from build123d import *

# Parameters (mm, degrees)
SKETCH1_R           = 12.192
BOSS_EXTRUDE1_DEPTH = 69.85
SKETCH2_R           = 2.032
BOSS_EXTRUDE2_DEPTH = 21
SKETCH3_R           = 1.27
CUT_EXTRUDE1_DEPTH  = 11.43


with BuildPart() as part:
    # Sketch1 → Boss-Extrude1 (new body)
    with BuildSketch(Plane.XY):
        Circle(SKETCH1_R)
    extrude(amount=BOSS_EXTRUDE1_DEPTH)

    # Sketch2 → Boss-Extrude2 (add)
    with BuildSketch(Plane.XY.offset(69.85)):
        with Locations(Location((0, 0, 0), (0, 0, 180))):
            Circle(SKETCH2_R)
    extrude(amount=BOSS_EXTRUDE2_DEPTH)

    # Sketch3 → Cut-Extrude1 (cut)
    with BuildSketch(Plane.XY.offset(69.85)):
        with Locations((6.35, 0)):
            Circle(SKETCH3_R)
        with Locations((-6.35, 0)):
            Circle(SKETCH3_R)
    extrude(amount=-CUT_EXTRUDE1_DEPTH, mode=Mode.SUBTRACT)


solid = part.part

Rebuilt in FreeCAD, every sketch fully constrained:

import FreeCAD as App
import Part
import Sketcher

V = App.Vector
Q = App.Units.Quantity

doc = App.newDocument("Part")
body = doc.addObject("PartDesign::Body", "Body")

# Sketch on XY plane
sketch1 = body.newObject("Sketcher::SketchObject", "Sketch")
sketch1.AttachmentSupport = (doc.getObject("XY_Plane"), [""])
sketch1.MapMode = "FlatFace"
sketch1.addGeometry(Part.Circle(V(0, 0, 0), V(0, 0, 1), 12), False)
sketch1.addConstraint([
    Sketcher.Constraint("Coincident", 0, 3, -1, 1),
    Sketcher.Constraint("Diameter", 0, Q("0.96 in")),
])
pad1 = body.newObject("PartDesign::Pad", "Pad")
pad1.Profile = sketch1
pad1.Length = Q("2.75 in")

# Sketch on XY plane
sketch2 = body.newObject("Sketcher::SketchObject", "Sketch001")
sketch2.AttachmentSupport = (doc.getObject("XY_Plane"), [""])
sketch2.MapMode = "FlatFace"
sketch2.AttachmentOffset = App.Placement(V(0, 0, 2.75 * 25.4), App.Rotation())
sketch2.addGeometry(Part.Circle(V(0, 0, 0), V(0, 0, 1), 2), False)
sketch2.addConstraint([
    Sketcher.Constraint("Coincident", 0, 3, -1, 1),
    Sketcher.Constraint("Diameter", 0, Q("0.16 in")),
])
pad2 = body.newObject("PartDesign::Pad", "Pad001")
pad2.Profile = sketch2
pad2.Length = 21

# Sketch on XY plane
sketch3 = body.newObject("Sketcher::SketchObject", "Sketch002")
sketch3.AttachmentSupport = (doc.getObject("XY_Plane"), [""])
sketch3.MapMode = "FlatFace"
sketch3.AttachmentOffset = App.Placement(V(0, 0, 2.75 * 25.4), App.Rotation())
sketch3.addGeometry([
    Part.Circle(V(6.3, 0, 0), V(0, 0, 1), 1.3),
    Part.Circle(V(-6.3, 0, 0), V(0, 0, 1), 1.3),
], False)
sketch3.addConstraint([
    Sketcher.Constraint("Equal", 0, 1),
    Sketcher.Constraint("Symmetric", 0, 3, 1, 3, -1, 1),
    Sketcher.Constraint("PointOnObject", 0, 3, -1),
    Sketcher.Constraint("Diameter", 0, Q("0.1 in")),
    Sketcher.Constraint("DistanceX", 1, 3, 0, 3, Q("0.5 in")),
])
pocket1 = body.newObject("PartDesign::Pocket", "Pocket")
pocket1.Profile = sketch3
pocket1.Length = Q("0.45 in")

doc.recompute()
